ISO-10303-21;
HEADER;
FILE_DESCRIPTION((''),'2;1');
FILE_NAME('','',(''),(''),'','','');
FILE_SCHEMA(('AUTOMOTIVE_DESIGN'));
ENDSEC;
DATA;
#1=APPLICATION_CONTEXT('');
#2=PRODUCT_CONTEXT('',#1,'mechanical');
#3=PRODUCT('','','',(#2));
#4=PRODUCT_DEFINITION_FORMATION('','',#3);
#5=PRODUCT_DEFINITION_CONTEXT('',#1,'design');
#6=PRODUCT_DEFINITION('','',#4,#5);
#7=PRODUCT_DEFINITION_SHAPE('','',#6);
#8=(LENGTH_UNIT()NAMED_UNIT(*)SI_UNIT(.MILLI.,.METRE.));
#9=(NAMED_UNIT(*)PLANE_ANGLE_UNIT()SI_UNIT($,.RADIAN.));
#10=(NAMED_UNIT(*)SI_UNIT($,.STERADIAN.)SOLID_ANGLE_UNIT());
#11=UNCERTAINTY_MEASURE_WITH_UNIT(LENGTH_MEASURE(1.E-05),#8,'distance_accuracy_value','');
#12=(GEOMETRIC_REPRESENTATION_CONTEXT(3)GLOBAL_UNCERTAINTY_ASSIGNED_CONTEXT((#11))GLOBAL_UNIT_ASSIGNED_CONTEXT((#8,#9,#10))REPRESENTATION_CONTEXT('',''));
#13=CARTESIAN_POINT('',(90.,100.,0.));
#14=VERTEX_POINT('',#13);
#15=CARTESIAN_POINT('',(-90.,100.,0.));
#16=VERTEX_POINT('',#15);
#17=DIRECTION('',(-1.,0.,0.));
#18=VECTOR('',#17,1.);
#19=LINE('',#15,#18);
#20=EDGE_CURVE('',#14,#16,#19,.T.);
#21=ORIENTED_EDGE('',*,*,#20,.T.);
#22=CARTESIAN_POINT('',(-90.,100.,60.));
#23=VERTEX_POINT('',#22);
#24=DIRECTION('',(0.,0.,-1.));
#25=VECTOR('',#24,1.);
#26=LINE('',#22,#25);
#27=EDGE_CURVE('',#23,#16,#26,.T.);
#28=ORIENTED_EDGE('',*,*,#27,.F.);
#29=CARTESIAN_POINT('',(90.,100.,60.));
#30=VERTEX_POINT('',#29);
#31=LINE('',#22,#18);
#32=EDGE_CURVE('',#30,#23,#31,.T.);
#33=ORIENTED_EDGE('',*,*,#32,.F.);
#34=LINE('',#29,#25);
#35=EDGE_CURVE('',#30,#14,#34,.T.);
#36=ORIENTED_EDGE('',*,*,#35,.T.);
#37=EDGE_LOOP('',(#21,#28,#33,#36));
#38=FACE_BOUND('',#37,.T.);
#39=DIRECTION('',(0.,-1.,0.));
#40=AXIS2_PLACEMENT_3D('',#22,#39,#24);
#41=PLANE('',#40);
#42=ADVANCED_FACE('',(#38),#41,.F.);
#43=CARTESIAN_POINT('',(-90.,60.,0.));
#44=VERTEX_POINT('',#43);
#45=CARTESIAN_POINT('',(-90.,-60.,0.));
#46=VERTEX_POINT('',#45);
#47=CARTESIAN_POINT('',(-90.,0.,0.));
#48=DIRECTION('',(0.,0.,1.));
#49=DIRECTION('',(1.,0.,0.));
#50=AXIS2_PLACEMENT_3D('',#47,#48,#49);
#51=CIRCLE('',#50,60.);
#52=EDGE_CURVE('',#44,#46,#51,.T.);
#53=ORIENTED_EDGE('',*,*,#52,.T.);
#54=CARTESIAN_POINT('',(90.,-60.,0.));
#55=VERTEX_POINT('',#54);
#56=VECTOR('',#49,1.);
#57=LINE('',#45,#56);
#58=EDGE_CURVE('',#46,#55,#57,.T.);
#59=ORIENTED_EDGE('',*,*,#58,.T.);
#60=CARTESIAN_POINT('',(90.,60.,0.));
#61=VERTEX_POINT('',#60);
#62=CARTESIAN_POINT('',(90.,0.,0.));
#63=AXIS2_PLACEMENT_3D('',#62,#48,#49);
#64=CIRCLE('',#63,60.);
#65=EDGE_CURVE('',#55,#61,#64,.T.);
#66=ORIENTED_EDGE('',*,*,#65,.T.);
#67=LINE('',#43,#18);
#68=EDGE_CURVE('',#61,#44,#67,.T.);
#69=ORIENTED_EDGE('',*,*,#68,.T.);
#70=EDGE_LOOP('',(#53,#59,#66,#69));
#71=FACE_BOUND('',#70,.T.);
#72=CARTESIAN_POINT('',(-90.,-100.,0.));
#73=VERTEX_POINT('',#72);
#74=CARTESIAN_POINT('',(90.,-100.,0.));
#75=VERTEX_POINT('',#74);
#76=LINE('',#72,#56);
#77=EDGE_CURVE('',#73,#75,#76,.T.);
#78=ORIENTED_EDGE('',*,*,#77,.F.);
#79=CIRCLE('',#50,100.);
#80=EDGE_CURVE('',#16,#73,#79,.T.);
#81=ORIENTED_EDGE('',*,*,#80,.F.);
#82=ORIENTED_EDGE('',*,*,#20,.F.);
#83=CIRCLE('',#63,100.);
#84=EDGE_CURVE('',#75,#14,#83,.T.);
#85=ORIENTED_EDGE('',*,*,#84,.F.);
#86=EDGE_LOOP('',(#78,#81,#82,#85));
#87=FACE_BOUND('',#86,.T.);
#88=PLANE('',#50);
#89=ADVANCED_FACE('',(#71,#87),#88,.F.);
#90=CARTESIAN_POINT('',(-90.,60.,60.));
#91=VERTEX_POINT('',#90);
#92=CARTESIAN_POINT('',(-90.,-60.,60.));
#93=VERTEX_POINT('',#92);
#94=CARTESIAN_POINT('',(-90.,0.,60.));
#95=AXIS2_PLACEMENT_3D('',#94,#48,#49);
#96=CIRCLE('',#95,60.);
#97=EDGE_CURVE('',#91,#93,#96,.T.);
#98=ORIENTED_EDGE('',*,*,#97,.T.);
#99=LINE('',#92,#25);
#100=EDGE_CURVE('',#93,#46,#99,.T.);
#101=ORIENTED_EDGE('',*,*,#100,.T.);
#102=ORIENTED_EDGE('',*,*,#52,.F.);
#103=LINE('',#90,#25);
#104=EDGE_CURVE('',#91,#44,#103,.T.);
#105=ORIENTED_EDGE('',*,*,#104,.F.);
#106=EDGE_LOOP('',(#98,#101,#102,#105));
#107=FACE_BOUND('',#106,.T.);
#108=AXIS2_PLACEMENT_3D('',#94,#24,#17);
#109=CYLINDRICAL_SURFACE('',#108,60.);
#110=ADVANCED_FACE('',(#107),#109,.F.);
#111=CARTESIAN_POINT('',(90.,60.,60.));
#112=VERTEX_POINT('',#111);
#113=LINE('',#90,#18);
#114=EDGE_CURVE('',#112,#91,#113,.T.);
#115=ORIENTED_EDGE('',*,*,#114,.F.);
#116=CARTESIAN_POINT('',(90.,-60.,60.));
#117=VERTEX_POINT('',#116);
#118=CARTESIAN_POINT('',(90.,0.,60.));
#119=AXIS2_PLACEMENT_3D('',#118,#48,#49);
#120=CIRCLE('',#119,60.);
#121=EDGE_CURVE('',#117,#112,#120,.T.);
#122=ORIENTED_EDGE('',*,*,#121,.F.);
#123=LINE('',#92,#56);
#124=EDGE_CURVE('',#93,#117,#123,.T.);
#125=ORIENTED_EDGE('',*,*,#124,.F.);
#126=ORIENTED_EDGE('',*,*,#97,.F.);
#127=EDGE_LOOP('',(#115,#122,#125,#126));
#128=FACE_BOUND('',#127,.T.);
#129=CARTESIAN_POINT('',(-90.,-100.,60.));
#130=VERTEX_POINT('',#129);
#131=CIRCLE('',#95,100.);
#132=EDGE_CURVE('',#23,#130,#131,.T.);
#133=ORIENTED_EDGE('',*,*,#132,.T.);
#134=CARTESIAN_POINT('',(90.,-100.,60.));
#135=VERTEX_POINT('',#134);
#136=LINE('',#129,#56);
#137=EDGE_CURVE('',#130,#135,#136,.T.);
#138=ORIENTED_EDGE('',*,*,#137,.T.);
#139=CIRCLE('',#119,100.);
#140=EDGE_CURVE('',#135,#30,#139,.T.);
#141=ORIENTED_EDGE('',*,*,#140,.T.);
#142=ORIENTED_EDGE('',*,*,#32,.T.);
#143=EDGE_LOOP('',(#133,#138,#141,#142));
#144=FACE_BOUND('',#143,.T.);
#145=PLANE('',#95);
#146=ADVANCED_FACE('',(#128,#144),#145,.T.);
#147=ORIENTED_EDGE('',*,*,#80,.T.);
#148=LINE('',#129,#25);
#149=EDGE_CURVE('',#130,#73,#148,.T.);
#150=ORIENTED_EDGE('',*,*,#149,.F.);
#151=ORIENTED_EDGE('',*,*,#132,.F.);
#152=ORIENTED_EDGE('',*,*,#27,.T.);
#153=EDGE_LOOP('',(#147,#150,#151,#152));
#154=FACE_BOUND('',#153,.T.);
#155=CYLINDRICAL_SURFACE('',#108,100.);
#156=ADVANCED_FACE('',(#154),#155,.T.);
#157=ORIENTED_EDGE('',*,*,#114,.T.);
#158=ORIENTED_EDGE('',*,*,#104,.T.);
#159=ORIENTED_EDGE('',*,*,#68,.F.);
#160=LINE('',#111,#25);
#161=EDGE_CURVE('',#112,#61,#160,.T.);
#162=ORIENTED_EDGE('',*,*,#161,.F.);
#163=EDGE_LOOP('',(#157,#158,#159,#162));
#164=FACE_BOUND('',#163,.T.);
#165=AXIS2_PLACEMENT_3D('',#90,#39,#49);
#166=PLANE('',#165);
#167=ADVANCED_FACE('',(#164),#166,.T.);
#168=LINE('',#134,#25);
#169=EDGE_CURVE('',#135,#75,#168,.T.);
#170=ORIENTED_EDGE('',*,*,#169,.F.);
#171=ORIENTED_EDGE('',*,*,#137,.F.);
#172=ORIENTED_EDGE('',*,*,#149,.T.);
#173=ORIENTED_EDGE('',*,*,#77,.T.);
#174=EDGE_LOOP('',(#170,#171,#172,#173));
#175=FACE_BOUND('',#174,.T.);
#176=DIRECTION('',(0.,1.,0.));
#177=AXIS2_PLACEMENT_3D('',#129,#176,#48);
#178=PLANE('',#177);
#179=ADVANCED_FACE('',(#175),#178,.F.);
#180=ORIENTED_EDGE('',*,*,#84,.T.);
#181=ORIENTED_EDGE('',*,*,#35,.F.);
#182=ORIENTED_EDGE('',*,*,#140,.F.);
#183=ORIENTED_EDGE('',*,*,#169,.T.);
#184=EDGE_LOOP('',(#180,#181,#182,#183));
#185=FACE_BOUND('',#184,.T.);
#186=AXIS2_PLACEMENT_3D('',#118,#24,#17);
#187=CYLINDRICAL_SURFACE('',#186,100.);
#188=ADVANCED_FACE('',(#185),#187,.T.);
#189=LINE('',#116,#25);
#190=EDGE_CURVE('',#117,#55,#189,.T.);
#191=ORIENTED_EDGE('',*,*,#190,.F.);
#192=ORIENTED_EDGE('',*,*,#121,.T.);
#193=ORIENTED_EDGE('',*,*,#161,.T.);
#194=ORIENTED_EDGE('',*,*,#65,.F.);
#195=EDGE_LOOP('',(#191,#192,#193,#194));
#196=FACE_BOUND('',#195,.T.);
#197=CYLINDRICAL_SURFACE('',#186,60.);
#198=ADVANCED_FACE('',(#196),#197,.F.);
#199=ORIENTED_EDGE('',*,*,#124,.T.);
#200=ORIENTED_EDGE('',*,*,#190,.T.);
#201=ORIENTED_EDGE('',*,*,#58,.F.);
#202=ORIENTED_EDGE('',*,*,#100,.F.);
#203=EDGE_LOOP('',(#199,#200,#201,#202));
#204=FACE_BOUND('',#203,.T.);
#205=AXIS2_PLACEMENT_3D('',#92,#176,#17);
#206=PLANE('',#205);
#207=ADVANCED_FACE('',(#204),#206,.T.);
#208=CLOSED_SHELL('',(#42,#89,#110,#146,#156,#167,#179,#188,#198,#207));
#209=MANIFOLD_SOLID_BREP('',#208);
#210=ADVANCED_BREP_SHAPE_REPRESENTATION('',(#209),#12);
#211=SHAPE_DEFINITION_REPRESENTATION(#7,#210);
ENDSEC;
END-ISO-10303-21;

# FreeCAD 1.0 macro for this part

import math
import FreeCAD as App
import Part
import Sketcher

V = App.Vector

doc = App.newDocument("Part")
body = doc.addObject("PartDesign::Body", "Body")

# Sketch on XY plane
sketch1 = doc.addObject("Sketcher::SketchObject", "Sketch")
body.addObject(sketch1)
sketch1.AttachmentSupport = (doc.XY_Plane, [""])
sketch1.MapMode = "FlatFace"
sketch1.addGeometry([
    Part.LineSegment(V(90, 100, 0), V(-90, 100, 0)),  # 0
    Part.ArcOfCircle(Part.Circle(V(-90, 0, 0), V(0, 0, 1), 100), math.radians(90), math.radians(270)),  # 1
    Part.LineSegment(V(-90, -100, 0), V(90, -100, 0)),  # 2
    Part.ArcOfCircle(Part.Circle(V(90, 0, 0), V(0, 0, 1), 100), math.radians(-90), math.radians(90)),  # 3
    Part.LineSegment(V(-90, 60, 0), V(90, 60, 0)),  # 4
    Part.ArcOfCircle(Part.Circle(V(90, 0, 0), V(0, 0, 1), 60), math.radians(-90), math.radians(90)),  # 5
    Part.LineSegment(V(90, -60, 0), V(-90, -60, 0)),  # 6
    Part.ArcOfCircle(Part.Circle(V(-90, 0, 0), V(0, 0, 1), 60), math.radians(90), math.radians(270)),  # 7
], False)
sketch1.addConstraint([
    Sketcher.Constraint("Tangent", 0, 2, 1, 1),
    Sketcher.Constraint("Tangent", 1, 2, 2, 1),
    Sketcher.Constraint("Tangent", 2, 2, 3, 1),
    Sketcher.Constraint("Tangent", 3, 2, 0, 1),
    Sketcher.Constraint("Tangent", 4, 2, 5, 2),
    Sketcher.Constraint("Tangent", 5, 1, 6, 1),
    Sketcher.Constraint("Tangent", 6, 2, 7, 2),
    Sketcher.Constraint("Tangent", 7, 1, 4, 1),
    Sketcher.Constraint("Horizontal", 0),
    Sketcher.Constraint("Horizontal", 2),
    Sketcher.Constraint("Horizontal", 4),
    Sketcher.Constraint("Horizontal", 6),
    Sketcher.Constraint("Coincident", 5, 3, 3, 3),
    Sketcher.Constraint("Symmetric", 1, 3, 3, 3, -1, 1),
    Sketcher.Constraint("Vertical", 7, 3, 0, 2),
    Sketcher.Constraint("Radius", 1, 100.0),
    Sketcher.Constraint("Radius", 5, 60.0),
    Sketcher.Constraint("DistanceX", 0, 2, 0, 1, 180.0),
])
pad1 = doc.addObject("PartDesign::Pad", "Pad")
body.addObject(pad1)
pad1.Profile = sketch1
pad1.Length = 60

doc.recompute()
